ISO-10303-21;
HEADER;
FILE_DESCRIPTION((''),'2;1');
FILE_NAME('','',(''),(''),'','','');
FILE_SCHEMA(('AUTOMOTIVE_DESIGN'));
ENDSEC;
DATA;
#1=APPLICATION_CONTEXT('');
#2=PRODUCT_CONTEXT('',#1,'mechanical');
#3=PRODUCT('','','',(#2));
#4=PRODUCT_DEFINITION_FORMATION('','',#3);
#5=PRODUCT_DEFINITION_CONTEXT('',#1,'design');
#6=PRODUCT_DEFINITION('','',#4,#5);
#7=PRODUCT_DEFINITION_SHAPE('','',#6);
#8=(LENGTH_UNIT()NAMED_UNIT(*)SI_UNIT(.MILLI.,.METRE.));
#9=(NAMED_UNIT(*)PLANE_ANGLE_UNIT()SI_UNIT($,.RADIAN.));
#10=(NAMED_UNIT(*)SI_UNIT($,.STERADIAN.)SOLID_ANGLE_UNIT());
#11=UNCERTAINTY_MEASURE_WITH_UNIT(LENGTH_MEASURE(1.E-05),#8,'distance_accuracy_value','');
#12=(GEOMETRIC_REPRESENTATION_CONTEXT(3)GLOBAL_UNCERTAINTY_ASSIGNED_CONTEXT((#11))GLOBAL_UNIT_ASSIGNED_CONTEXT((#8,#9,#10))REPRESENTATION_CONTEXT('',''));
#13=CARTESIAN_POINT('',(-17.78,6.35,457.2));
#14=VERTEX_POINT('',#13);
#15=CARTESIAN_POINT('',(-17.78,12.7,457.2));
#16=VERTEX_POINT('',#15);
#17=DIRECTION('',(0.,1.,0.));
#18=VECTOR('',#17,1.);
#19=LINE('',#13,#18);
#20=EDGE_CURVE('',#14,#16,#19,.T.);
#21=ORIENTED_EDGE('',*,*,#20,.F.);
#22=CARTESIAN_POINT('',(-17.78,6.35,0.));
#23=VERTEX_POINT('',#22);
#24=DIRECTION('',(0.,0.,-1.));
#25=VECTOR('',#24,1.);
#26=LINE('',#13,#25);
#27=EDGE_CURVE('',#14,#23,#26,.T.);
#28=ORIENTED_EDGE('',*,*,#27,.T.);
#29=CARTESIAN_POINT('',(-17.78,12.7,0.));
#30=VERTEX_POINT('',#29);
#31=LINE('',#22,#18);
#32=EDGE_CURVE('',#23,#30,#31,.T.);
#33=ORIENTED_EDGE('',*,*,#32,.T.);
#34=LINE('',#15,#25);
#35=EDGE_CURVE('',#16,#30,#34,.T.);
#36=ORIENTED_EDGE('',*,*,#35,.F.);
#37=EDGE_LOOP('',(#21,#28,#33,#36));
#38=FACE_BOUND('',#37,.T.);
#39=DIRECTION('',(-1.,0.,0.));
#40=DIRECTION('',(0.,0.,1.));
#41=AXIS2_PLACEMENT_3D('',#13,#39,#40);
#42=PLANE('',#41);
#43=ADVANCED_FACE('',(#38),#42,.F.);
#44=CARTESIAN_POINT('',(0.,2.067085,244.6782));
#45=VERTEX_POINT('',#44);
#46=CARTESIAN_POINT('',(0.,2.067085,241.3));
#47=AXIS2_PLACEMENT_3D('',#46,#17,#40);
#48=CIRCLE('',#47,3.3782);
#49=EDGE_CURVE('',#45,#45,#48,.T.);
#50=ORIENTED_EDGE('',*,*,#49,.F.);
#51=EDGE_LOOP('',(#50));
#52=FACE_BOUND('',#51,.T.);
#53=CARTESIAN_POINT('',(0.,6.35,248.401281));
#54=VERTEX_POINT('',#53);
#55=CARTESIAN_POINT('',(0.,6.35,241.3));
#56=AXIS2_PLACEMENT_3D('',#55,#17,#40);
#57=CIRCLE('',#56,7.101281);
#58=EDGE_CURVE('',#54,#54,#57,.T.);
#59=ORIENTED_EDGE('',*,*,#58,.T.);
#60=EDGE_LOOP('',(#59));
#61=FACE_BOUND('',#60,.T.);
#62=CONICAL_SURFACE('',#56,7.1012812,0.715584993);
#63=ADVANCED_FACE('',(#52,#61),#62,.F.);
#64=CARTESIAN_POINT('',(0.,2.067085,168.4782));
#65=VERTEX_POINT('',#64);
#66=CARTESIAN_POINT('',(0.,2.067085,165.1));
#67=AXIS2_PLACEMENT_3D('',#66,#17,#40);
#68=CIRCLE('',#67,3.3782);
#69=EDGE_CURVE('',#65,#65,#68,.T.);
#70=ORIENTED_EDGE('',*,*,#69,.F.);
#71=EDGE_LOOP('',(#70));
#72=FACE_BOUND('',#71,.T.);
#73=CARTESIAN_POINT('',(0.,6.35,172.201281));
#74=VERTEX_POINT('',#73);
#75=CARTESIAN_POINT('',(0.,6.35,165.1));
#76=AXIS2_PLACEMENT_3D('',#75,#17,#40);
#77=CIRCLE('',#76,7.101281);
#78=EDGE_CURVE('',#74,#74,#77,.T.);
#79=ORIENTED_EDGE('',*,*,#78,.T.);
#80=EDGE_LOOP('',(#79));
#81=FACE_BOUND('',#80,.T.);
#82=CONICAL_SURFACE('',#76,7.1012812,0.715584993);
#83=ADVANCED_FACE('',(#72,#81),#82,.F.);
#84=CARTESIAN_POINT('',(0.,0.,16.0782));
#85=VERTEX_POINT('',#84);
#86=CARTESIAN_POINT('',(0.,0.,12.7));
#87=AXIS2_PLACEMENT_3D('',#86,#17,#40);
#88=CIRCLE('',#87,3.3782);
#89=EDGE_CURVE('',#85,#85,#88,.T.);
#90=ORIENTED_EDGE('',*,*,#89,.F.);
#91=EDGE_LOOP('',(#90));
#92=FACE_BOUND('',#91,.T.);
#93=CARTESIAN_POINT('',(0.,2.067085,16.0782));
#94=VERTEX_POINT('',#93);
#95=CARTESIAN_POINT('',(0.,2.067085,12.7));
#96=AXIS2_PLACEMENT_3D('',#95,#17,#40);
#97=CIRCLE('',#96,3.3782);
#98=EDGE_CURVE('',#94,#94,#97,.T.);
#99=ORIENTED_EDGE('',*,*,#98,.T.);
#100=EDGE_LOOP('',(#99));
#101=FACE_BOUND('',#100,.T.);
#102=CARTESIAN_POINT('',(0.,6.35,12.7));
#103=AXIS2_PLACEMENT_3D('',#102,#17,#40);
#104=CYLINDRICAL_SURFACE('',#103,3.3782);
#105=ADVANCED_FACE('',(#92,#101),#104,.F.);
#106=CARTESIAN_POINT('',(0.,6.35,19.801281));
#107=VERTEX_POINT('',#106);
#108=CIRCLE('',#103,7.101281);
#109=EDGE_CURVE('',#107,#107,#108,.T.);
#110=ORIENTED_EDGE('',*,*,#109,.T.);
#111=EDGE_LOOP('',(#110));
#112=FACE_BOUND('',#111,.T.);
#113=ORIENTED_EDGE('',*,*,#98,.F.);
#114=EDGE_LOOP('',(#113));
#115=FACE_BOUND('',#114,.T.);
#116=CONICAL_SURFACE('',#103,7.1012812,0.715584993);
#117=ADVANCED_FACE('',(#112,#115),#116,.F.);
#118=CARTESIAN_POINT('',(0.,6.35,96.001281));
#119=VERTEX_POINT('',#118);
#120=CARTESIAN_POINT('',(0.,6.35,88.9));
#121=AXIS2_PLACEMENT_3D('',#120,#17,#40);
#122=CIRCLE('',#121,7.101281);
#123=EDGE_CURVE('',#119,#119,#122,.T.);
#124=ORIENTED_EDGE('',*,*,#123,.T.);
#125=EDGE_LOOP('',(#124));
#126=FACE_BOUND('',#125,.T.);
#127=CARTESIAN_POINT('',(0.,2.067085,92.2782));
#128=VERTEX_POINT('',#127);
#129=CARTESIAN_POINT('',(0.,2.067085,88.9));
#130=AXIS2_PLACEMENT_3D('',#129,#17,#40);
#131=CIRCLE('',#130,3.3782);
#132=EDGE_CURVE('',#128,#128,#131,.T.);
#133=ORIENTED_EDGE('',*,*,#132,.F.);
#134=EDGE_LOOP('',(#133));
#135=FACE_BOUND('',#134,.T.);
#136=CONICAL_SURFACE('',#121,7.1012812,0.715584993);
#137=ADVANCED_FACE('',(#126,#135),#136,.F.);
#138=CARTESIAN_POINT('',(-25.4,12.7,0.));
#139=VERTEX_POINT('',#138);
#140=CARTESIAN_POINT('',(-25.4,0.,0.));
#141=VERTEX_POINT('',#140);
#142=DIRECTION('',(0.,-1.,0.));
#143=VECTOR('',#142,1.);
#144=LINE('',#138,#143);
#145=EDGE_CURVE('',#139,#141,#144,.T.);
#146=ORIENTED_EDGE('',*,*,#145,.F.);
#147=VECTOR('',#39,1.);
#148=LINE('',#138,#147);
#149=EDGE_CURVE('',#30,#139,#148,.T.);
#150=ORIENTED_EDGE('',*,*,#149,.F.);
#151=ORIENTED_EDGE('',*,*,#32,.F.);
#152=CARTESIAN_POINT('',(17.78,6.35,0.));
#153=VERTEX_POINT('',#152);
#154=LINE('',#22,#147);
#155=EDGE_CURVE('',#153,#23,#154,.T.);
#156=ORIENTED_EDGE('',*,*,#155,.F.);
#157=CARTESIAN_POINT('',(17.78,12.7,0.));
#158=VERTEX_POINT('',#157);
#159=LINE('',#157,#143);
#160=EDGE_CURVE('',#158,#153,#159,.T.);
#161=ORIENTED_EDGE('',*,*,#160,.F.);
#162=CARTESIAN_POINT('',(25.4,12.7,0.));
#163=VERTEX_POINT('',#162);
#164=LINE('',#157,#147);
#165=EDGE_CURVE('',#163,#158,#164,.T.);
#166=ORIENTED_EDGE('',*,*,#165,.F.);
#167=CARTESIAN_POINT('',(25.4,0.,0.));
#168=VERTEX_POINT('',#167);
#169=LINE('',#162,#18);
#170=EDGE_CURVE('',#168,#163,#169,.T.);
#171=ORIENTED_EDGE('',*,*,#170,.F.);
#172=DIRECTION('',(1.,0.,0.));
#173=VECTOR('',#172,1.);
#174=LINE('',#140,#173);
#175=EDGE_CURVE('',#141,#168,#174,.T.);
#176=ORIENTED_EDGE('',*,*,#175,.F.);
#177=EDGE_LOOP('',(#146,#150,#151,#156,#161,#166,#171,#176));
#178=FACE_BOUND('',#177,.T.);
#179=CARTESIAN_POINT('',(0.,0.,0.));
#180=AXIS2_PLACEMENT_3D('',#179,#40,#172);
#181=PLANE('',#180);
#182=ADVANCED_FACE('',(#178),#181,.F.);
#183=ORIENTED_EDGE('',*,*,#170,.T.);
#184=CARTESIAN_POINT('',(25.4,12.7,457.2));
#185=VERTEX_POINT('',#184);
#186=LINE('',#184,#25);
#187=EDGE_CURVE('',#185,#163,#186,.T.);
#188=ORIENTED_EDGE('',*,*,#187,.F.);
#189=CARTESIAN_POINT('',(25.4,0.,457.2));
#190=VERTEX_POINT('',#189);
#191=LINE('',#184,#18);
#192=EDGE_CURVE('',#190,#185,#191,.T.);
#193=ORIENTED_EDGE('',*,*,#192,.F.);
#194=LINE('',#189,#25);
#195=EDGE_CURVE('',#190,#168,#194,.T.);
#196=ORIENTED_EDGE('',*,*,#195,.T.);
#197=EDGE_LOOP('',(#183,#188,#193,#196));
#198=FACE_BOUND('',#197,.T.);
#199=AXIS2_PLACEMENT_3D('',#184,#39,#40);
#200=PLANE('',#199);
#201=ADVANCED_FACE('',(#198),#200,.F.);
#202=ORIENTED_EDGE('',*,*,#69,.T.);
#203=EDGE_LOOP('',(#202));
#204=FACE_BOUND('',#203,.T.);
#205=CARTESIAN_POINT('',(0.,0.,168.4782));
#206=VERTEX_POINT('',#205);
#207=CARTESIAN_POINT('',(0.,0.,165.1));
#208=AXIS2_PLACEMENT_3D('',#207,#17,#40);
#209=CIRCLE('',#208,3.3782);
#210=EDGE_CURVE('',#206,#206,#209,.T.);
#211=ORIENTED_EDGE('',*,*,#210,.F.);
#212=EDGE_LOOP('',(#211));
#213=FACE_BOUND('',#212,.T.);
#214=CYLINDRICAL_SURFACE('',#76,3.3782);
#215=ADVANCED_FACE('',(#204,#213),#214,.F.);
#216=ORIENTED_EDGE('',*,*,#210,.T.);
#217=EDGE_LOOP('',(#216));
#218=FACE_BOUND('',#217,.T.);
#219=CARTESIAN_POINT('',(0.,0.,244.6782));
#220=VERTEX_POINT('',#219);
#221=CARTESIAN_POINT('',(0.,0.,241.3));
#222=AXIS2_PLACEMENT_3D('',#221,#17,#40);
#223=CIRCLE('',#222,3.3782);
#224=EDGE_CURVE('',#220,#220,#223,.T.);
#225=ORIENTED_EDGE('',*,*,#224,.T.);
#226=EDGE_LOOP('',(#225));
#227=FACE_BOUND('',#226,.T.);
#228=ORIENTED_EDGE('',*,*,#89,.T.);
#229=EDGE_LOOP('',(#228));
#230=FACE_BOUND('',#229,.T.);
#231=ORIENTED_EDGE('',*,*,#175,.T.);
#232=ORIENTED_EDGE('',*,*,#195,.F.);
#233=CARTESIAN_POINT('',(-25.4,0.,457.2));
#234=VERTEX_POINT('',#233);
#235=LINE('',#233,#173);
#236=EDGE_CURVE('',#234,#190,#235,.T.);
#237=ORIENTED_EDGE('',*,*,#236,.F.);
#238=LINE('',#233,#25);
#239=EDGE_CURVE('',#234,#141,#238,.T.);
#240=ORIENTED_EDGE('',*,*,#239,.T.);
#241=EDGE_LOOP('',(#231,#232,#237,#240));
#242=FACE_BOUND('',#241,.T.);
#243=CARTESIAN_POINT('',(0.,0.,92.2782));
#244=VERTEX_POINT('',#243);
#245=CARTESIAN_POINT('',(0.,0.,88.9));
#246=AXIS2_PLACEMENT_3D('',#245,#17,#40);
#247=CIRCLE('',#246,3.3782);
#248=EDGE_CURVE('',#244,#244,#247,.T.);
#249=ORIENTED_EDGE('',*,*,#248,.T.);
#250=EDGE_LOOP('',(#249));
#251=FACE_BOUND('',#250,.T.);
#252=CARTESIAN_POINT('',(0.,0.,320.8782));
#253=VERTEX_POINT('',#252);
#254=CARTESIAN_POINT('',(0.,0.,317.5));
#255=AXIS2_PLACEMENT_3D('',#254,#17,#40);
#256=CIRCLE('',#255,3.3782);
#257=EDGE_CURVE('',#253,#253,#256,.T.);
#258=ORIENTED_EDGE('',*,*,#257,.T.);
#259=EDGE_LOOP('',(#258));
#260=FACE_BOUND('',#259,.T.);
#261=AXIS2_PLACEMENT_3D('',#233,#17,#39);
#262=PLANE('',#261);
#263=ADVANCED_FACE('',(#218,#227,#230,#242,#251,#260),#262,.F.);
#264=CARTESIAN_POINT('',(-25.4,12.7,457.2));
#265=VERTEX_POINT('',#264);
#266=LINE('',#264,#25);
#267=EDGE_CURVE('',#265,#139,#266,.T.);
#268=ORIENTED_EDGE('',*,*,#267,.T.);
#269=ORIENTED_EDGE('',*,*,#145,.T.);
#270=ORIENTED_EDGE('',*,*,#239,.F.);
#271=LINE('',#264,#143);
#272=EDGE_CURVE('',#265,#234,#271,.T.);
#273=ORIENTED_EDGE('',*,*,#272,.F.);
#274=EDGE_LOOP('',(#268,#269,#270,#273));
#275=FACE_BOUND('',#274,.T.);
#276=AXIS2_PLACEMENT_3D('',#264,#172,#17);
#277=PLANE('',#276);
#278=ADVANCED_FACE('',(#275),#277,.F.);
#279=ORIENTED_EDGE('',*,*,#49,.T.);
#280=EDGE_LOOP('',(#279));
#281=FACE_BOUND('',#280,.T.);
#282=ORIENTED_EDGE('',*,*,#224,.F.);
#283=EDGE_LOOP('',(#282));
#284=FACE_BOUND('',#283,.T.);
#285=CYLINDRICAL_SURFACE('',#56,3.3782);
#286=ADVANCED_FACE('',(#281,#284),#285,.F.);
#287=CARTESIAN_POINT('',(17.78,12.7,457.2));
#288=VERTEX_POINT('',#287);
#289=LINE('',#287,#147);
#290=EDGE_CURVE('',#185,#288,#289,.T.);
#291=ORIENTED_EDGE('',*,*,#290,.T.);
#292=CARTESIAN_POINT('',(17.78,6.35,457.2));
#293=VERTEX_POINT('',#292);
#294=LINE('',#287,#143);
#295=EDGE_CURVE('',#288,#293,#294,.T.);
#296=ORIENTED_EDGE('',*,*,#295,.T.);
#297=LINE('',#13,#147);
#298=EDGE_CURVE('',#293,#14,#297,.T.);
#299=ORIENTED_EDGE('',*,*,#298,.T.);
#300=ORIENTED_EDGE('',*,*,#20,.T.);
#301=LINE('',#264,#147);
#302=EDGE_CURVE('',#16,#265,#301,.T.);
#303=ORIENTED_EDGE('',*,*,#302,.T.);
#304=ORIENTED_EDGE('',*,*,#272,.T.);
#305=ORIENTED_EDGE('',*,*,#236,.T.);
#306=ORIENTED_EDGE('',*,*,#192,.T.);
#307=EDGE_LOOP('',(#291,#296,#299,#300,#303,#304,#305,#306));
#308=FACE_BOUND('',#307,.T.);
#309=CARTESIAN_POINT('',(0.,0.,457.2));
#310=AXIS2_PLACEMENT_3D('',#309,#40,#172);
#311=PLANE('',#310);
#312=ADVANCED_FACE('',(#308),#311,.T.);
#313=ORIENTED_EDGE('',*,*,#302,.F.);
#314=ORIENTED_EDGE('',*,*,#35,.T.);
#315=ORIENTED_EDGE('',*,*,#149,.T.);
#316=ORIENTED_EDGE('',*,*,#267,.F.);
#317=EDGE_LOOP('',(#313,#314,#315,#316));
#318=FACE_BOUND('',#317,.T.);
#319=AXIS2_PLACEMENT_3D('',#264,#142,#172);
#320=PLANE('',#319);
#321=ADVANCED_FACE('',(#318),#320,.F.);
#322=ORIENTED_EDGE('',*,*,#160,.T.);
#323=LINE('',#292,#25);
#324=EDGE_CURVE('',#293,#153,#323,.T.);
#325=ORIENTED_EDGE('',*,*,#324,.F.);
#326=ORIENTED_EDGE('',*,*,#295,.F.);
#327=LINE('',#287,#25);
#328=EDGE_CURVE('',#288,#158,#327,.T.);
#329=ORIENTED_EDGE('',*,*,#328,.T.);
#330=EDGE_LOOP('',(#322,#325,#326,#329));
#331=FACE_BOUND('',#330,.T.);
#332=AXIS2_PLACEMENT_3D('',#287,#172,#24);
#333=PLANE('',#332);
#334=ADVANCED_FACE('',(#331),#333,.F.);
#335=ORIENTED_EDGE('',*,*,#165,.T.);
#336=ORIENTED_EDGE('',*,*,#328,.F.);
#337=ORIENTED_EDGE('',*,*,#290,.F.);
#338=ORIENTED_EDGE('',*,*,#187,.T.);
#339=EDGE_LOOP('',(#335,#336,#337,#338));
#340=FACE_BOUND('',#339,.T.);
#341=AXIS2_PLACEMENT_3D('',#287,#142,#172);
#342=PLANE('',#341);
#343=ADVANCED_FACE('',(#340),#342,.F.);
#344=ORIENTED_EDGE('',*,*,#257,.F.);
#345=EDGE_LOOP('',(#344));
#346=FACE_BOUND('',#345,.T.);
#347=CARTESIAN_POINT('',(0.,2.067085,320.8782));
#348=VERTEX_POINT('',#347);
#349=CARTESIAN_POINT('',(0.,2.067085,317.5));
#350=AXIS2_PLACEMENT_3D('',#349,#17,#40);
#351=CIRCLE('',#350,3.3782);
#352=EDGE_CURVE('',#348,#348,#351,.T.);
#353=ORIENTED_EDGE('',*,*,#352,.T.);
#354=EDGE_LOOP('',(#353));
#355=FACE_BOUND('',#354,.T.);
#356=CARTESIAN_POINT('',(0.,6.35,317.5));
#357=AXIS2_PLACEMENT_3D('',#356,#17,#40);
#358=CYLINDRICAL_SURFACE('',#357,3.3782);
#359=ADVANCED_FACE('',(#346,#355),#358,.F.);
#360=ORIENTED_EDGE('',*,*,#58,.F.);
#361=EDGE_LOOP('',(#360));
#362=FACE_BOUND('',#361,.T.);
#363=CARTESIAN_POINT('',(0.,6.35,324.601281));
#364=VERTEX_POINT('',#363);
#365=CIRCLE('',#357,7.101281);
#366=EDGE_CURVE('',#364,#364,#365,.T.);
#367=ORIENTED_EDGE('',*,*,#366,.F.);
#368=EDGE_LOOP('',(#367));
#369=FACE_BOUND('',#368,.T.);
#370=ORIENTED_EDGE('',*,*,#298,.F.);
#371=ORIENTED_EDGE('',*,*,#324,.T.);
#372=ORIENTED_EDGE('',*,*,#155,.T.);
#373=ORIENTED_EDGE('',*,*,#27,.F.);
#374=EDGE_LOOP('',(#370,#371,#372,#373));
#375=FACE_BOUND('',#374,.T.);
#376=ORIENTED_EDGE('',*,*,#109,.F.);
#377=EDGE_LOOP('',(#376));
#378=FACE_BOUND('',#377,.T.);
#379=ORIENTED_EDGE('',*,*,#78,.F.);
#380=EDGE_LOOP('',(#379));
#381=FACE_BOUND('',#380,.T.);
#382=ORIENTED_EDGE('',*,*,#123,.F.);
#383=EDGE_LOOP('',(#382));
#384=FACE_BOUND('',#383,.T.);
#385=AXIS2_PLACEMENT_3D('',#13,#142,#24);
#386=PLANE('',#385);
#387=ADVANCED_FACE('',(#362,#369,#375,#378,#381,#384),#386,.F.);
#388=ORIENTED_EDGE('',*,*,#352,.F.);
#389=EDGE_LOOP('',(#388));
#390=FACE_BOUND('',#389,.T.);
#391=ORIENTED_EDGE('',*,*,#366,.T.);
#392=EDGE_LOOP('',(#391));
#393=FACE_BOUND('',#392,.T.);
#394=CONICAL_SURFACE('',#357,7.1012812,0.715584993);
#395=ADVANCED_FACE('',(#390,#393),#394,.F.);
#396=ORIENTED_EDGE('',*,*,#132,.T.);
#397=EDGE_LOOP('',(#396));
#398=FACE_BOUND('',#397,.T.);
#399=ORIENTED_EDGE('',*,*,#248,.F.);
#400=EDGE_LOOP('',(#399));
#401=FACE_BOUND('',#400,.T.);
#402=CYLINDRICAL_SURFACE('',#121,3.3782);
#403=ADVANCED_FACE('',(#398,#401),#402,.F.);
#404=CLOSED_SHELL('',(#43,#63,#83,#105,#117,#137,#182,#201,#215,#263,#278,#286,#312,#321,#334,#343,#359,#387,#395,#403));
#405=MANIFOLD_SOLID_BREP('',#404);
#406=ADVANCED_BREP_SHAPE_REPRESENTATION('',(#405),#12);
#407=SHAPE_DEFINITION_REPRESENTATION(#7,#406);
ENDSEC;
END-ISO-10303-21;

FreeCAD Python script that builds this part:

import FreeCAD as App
import Part
import Sketcher
from FreeCAD import Vector
Q = App.Units.Quantity

doc = App.newDocument("Part")
body = doc.addObject("PartDesign::Body", "Body")

# Sketch on XY plane
sketch1 = body.newObject("Sketcher::SketchObject", "Sketch")
sketch1.AttachmentSupport = (doc.getObject("XY_Plane"), [""])
sketch1.MapMode = "FlatFace"
sketch1.addGeometry(Part.LineSegment(Vector(-18, 6, 0), Vector(-18, 13, 0)), False)
sketch1.addGeometry(Part.LineSegment(Vector(-18, 13, 0), Vector(-25, 13, 0)), False)
sketch1.addGeometry(Part.LineSegment(Vector(-25, 13, 0), Vector(-25, 0, 0)), False)
sketch1.addGeometry(Part.LineSegment(Vector(-25, 0, 0), Vector(25, 0, 0)), False)
sketch1.addGeometry(Part.LineSegment(Vector(25, 0, 0), Vector(25, 13, 0)), False)
sketch1.addGeometry(Part.LineSegment(Vector(25, 13, 0), Vector(18, 13, 0)), False)
sketch1.addGeometry(Part.LineSegment(Vector(18, 13, 0), Vector(18, 6, 0)), False)
sketch1.addGeometry(Part.LineSegment(Vector(18, 6, 0), Vector(-18, 6, 0)), False)
sketch1.addConstraint(Sketcher.Constraint("Coincident", 0, 2, 1, 1))
sketch1.addConstraint(Sketcher.Constraint("Coincident", 1, 2, 2, 1))
sketch1.addConstraint(Sketcher.Constraint("Coincident", 2, 2, 3, 1))
sketch1.addConstraint(Sketcher.Constraint("Coincident", 3, 2, 4, 1))
sketch1.addConstraint(Sketcher.Constraint("Coincident", 4, 2, 5, 1))
sketch1.addConstraint(Sketcher.Constraint("Coincident", 5, 2, 6, 1))
sketch1.addConstraint(Sketcher.Constraint("Coincident", 6, 2, 7, 1))
sketch1.addConstraint(Sketcher.Constraint("Coincident", 7, 2, 0, 1))
sketch1.addConstraint(Sketcher.Constraint("Vertical", 0))
sketch1.addConstraint(Sketcher.Constraint("Horizontal", 1))
sketch1.addConstraint(Sketcher.Constraint("Vertical", 2))
sketch1.addConstraint(Sketcher.Constraint("Horizontal", 3))
sketch1.addConstraint(Sketcher.Constraint("Vertical", 4))
sketch1.addConstraint(Sketcher.Constraint("Horizontal", 5))
sketch1.addConstraint(Sketcher.Constraint("Vertical", 6))
sketch1.addConstraint(Sketcher.Constraint("Horizontal", 7))
sketch1.addConstraint(Sketcher.Constraint("Symmetric", 2, 2, 3, 2, -1, 1))
sketch1.addConstraint(Sketcher.Constraint("Symmetric", 0, 2, 5, 2, -2))
sketch1.addConstraint(Sketcher.Constraint("DistanceX", 3, 1, 3, 2, Q("2 in")))
sketch1.addConstraint(Sketcher.Constraint("DistanceX", 1, 2, 1, 1, Q("0.3 in")))
sketch1.addConstraint(Sketcher.Constraint("DistanceY", 2, 2, 2, 1, Q("0.5 in")))
sketch1.addConstraint(Sketcher.Constraint("DistanceY", 0, 1, 0, 2, Q("0.25 in")))
pad1 = body.newObject("PartDesign::Pad", "Pad")
pad1.Profile = sketch1
pad1.Length = Q("18 in")

# Sketch on YZ plane
sketch2 = body.newObject("Sketcher::SketchObject", "Sketch001")
sketch2.AttachmentSupport = (doc.getObject("YZ_Plane"), [""])
sketch2.MapMode = "FlatFace"
sketch2.addGeometry(Part.LineSegment(Vector(0, 12.7, 0), Vector(6.3, 12.7, 0)), False)
sketch2.addGeometry(Part.LineSegment(Vector(6.3, 12.7, 0), Vector(6.3, 19.8, 0)), False)
sketch2.addGeometry(Part.LineSegment(Vector(6.3, 19.8, 0), Vector(2.1, 16.1, 0)), False)
sketch2.addGeometry(Part.LineSegment(Vector(2.1, 16.1, 0), Vector(0, 16.1, 0)), False)
sketch2.addGeometry(Part.LineSegment(Vector(0, 16.1, 0), Vector(0, 12.7, 0)), False)
sketch2.addGeometry(Part.LineSegment(Vector(6.3, 12.7, 0), Vector(0, 12.7, 0)), True)  # axis
sketch2.addConstraint(Sketcher.Constraint("Coincident", 0, 2, 1, 1))
sketch2.addConstraint(Sketcher.Constraint("Coincident", 1, 2, 2, 1))
sketch2.addConstraint(Sketcher.Constraint("Coincident", 2, 2, 3, 1))
sketch2.addConstraint(Sketcher.Constraint("Coincident", 3, 2, 4, 1))
sketch2.addConstraint(Sketcher.Constraint("Coincident", 4, 2, 0, 1))
sketch2.addConstraint(Sketcher.Constraint("Horizontal", 0))
sketch2.addConstraint(Sketcher.Constraint("Vertical", 1))
sketch2.addConstraint(Sketcher.Constraint("Horizontal", 3))
sketch2.addConstraint(Sketcher.Constraint("Vertical", 4))
sketch2.addConstraint(Sketcher.Constraint("Horizontal", 5))
sketch2.addConstraint(Sketcher.Constraint("Coincident", 5, 1, 0, 2))
sketch2.addConstraint(Sketcher.Constraint("PointOnObject", 3, 2, -2))
sketch2.addConstraint(Sketcher.Constraint("PointOnObject", 5, 2, -2))
sketch2.addConstraint(Sketcher.Constraint("Angle", 2, Q("-139 deg")))
sketch2.addConstraint(Sketcher.Constraint("DistanceX", 0, 1, 0, 2, Q("0.25 in")))
sketch2.addConstraint(Sketcher.Constraint("DistanceY", -1, 1, 0, 2, Q("0.5 in")))
sketch2.addConstraint(Sketcher.Constraint("DistanceY", 4, 2, 4, 1, Q("0.133 in")))
sketch2.addConstraint(Sketcher.Constraint("DistanceY", 1, 1, 1, 2, Q("7.101281 mm")))
groove = body.newObject("PartDesign::Groove", "Groove")
groove.Profile = sketch2
groove.ReferenceAxis = (sketch2, ["Axis0"])
groove.Angle = 360
doc.recompute()

linearpattern = body.newObject("PartDesign::LinearPattern", "LinearPattern")
linearpattern.Originals = [groove]
linearpattern.Direction = (doc.getObject("Z_Axis"), [""])
linearpattern.Mode = "offset"
linearpattern.Offset = Q("3 in")
linearpattern.Occurrences = 2
body.Tip = linearpattern
doc.recompute()

linearpattern2 = body.newObject("PartDesign::LinearPattern", "LinearPattern001")
linearpattern2.Originals = [groove]
linearpattern2.Direction = (doc.getObject("Z_Axis"), [""])
linearpattern2.Mode = "offset"
linearpattern2.Offset = Q("6 in")
linearpattern2.Occurrences = 2
body.Tip = linearpattern2
doc.recompute()

linearpattern3 = body.newObject("PartDesign::LinearPattern", "LinearPattern002")
linearpattern3.Originals = [groove]
linearpattern3.Direction = (doc.getObject("Z_Axis"), [""])
linearpattern3.Mode = "offset"
linearpattern3.Offset = Q("9 in")
linearpattern3.Occurrences = 2
body.Tip = linearpattern3
doc.recompute()

linearpattern4 = body.newObject("PartDesign::LinearPattern", "LinearPattern003")
linearpattern4.Originals = [groove]
linearpattern4.Direction = (doc.getObject("Z_Axis"), [""])
linearpattern4.Mode = "offset"
linearpattern4.Offset = Q("12 in")
linearpattern4.Occurrences = 2
body.Tip = linearpattern4

doc.recompute()
